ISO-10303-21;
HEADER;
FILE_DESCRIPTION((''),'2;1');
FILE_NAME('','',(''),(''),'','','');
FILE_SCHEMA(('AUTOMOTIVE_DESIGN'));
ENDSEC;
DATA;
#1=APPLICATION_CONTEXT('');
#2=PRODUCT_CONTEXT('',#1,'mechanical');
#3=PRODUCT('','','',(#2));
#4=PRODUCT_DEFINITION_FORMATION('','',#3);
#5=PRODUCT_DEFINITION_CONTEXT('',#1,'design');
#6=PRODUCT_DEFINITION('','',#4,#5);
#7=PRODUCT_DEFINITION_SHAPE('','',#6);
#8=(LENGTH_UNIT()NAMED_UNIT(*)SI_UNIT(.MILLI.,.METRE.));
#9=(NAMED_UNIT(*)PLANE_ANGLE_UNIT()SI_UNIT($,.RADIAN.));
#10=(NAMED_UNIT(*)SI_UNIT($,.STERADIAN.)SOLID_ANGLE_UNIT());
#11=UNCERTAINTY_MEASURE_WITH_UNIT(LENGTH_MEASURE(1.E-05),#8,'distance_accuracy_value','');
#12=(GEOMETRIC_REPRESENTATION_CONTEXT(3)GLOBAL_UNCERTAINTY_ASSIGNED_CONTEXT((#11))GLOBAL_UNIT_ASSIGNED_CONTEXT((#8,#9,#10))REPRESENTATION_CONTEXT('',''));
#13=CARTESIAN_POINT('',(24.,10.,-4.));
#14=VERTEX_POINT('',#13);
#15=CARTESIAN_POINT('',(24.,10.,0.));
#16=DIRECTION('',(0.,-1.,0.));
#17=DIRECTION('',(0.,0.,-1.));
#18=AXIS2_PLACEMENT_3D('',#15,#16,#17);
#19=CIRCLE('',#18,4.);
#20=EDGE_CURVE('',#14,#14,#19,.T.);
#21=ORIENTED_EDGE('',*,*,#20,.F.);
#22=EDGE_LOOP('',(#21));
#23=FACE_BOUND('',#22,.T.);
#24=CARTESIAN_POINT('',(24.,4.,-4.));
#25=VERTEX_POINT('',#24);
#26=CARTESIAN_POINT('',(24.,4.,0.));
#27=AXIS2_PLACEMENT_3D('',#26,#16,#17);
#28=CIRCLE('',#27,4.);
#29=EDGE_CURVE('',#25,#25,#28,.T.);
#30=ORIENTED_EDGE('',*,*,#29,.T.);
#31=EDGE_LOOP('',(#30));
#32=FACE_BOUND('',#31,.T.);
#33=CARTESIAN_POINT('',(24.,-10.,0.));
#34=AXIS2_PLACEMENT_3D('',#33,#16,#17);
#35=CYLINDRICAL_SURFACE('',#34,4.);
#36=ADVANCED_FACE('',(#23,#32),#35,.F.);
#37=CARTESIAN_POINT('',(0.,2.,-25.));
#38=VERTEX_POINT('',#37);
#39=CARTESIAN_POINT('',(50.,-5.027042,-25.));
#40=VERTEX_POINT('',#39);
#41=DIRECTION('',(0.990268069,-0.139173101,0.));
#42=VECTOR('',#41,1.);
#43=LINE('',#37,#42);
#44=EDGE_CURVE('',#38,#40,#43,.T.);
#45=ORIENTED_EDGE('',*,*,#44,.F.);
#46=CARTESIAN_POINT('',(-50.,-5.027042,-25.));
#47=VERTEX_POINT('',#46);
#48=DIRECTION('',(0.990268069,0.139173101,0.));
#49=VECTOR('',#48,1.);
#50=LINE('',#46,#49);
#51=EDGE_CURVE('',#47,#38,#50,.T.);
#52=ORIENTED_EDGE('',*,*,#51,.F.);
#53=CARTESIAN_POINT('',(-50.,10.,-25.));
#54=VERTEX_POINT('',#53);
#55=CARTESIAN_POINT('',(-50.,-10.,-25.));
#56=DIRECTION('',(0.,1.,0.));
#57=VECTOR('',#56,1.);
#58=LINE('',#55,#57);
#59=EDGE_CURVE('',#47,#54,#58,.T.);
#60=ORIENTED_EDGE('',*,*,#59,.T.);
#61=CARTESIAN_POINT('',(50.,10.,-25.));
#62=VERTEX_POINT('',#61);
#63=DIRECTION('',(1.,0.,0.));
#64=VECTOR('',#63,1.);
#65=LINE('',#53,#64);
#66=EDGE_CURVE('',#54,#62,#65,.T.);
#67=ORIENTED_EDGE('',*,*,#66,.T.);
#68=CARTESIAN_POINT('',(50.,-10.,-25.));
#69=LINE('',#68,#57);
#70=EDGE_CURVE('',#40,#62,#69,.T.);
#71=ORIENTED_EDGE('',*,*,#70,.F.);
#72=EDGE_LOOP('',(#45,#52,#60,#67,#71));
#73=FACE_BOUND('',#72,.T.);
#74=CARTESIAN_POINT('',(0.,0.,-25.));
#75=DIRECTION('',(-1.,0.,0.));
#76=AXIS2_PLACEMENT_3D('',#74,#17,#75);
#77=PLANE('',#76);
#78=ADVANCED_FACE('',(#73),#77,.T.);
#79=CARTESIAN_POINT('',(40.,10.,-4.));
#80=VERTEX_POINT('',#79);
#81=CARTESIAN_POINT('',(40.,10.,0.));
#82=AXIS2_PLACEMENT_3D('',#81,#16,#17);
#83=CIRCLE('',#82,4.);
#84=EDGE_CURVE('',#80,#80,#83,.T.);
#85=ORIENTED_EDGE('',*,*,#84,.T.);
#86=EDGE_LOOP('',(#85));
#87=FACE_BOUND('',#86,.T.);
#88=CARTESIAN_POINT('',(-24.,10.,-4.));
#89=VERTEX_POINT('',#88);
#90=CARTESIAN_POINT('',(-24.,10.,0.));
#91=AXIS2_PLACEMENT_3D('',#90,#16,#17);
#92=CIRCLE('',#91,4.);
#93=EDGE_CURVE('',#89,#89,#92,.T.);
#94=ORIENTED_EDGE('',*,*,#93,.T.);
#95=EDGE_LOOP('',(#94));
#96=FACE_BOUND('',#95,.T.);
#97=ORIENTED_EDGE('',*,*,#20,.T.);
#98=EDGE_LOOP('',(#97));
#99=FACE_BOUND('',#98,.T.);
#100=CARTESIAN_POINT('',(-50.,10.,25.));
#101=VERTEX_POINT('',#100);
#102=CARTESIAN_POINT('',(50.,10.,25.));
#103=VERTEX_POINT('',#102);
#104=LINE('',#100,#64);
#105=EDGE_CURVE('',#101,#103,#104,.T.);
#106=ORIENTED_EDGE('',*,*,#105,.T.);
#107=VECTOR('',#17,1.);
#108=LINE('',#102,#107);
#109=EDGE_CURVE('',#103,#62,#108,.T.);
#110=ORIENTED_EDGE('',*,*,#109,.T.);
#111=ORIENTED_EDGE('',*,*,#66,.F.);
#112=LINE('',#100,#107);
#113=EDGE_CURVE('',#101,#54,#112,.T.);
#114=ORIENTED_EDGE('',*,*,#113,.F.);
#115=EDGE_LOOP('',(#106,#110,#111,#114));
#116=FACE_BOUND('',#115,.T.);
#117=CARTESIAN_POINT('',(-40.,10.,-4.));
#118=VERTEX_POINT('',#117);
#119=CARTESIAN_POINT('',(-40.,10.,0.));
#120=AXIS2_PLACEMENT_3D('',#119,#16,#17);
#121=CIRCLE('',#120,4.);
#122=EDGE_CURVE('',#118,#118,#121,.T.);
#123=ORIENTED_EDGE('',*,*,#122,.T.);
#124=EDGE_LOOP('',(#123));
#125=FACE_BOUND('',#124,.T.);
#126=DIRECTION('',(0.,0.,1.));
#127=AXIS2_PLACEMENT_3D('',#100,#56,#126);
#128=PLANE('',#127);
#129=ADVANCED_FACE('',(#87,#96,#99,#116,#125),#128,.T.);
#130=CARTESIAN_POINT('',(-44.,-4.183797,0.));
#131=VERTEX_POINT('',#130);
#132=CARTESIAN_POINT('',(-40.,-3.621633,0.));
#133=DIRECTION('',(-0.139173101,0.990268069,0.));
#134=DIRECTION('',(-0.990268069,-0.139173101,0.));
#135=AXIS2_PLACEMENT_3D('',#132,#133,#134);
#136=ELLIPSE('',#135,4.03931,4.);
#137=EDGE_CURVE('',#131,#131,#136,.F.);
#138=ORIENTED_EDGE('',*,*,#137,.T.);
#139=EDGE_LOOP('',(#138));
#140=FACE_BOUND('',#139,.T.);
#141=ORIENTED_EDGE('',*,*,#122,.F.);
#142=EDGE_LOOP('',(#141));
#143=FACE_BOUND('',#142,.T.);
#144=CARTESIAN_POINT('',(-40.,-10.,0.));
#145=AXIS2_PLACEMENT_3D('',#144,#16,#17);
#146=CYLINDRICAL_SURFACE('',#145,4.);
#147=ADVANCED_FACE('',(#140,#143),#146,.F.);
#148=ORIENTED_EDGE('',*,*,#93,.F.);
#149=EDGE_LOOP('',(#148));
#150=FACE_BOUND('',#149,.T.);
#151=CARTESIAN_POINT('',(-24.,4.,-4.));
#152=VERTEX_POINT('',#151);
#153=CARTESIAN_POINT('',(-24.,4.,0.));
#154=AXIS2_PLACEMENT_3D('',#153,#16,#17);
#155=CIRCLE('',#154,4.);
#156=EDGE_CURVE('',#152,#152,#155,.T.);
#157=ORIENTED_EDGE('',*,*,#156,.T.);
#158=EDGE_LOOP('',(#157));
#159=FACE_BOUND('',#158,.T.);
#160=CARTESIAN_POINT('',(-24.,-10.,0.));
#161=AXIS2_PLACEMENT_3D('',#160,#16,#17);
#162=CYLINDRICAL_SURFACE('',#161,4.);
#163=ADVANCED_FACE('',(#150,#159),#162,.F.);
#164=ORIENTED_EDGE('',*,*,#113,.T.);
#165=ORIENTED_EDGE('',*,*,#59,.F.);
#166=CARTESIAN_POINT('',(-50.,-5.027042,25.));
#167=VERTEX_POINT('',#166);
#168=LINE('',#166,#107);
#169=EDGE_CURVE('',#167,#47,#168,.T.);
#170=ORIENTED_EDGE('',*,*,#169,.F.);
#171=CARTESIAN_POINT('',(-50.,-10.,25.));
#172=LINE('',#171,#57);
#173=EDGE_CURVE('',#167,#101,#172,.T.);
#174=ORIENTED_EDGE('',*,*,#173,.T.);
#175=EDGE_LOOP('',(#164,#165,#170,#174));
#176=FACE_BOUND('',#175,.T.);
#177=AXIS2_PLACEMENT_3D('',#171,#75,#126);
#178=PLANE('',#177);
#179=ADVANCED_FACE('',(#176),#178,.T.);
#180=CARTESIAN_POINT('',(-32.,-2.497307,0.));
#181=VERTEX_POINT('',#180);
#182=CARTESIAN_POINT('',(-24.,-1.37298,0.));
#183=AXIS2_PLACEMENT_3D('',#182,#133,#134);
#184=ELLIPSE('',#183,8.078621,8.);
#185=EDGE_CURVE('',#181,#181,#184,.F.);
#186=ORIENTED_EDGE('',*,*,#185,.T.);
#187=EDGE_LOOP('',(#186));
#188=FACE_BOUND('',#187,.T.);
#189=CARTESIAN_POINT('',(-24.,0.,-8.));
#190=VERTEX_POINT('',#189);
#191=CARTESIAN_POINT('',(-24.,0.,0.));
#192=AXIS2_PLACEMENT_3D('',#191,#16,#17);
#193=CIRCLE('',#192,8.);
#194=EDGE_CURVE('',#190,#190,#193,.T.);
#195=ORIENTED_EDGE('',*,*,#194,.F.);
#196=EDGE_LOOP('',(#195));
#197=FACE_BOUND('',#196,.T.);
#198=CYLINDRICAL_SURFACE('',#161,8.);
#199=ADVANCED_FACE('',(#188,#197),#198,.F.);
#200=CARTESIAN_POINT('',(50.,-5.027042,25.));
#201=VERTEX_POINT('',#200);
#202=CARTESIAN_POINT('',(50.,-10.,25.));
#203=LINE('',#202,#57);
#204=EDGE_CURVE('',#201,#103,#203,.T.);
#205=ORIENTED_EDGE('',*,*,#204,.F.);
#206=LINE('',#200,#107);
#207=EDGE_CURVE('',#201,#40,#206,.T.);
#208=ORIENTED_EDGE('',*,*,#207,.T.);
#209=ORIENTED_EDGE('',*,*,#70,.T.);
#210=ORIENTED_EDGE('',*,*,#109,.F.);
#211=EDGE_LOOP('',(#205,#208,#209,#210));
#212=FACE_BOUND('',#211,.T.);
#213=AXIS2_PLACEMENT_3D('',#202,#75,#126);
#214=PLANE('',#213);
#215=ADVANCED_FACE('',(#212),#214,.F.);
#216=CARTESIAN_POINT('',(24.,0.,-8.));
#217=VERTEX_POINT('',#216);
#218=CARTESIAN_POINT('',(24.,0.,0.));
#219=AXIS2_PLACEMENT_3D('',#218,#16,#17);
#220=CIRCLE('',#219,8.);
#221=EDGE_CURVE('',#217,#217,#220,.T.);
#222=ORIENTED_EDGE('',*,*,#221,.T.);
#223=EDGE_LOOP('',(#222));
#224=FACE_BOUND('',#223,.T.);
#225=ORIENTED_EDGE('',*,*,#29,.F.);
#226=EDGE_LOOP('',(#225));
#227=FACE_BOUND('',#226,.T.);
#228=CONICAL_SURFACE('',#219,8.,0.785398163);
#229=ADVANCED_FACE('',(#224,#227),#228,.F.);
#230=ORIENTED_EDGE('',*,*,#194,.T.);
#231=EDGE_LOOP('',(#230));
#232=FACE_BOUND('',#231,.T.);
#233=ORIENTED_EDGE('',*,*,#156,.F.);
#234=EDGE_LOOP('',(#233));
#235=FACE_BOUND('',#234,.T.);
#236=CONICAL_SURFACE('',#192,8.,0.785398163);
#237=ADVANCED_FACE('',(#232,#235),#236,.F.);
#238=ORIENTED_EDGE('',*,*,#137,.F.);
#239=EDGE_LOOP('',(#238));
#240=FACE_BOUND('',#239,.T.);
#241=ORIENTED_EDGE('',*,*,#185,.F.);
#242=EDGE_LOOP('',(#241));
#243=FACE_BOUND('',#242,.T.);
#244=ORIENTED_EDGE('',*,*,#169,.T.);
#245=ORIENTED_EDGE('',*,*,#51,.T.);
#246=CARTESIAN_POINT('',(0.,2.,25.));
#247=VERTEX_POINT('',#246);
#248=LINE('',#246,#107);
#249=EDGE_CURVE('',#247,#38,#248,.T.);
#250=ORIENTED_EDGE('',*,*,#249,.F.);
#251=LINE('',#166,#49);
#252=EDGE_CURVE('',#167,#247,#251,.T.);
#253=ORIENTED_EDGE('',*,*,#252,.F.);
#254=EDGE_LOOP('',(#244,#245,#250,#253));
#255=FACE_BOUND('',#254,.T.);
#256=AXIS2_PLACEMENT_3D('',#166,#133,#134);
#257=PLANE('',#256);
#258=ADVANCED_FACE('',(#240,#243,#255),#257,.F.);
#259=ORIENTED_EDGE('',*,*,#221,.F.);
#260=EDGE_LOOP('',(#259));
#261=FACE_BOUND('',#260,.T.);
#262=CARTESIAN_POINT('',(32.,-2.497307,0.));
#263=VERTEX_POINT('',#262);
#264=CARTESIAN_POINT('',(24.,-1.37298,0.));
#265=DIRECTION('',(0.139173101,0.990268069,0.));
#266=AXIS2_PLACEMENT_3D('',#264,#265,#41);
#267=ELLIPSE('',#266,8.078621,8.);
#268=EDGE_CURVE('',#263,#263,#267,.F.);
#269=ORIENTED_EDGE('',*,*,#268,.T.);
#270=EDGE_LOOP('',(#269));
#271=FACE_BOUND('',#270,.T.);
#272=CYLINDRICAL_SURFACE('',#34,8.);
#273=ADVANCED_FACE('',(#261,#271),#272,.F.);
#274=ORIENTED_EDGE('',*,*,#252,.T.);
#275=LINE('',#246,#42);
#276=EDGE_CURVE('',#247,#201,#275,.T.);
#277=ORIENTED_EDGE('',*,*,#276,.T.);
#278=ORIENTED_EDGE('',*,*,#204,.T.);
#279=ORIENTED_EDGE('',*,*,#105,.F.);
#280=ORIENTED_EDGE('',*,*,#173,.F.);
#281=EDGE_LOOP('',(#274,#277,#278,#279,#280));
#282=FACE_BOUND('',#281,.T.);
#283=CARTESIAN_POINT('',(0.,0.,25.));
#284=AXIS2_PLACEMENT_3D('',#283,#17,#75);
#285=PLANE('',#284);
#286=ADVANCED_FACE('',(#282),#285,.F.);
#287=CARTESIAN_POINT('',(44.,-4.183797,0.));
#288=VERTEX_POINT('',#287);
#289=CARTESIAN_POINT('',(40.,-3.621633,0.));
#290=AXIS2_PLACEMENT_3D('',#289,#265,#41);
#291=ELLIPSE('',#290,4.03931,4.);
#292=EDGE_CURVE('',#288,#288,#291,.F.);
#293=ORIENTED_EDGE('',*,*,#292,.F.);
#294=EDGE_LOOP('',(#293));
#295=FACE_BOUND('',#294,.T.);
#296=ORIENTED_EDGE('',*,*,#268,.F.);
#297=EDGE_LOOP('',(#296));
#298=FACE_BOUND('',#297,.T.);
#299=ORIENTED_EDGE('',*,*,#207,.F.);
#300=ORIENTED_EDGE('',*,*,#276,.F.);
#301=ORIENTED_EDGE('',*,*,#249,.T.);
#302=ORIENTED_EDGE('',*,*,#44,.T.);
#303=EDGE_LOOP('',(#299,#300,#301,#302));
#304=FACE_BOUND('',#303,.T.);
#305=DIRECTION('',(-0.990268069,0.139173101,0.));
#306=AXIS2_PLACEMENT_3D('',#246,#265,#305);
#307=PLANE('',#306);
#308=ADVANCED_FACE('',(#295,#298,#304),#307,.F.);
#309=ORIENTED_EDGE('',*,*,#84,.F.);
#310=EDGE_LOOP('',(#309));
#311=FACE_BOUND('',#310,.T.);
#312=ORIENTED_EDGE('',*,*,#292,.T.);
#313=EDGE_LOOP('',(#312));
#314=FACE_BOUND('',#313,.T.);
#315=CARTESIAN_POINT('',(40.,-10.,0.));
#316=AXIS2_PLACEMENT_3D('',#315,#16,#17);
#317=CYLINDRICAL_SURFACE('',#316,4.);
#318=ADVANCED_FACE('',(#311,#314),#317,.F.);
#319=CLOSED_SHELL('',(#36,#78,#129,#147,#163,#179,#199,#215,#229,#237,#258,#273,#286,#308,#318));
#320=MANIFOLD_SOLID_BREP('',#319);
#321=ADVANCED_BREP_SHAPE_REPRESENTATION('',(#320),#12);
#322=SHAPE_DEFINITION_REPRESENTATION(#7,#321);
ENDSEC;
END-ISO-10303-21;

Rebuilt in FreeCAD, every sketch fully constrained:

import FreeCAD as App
import Part
import Sketcher
from FreeCAD import Vector
Q = App.Units.Quantity

doc = App.newDocument("Part")
body = doc.addObject("PartDesign::Body", "Body")

sketch1 = body.newObject("Sketcher::SketchObject", "Sketch")
sketch1.AttachmentSupport = (doc.getObject("XY_Plane"), [""])
sketch1.MapMode = "FlatFace"
sketch1.addGeometry(Part.LineSegment(Vector(-50, 10, 0), Vector(-50, -10, 0)), False)
sketch1.addGeometry(Part.LineSegment(Vector(-50, -10, 0), Vector(50, -10, 0)), False)
sketch1.addGeometry(Part.LineSegment(Vector(50, -10, 0), Vector(50, 10, 0)), False)
sketch1.addGeometry(Part.LineSegment(Vector(50, 10, 0), Vector(-50, 10, 0)), False)
sketch1.addConstraint(Sketcher.Constraint("Coincident", 0, 2, 1, 1))
sketch1.addConstraint(Sketcher.Constraint("Coincident", 1, 2, 2, 1))
sketch1.addConstraint(Sketcher.Constraint("Coincident", 2, 2, 3, 1))
sketch1.addConstraint(Sketcher.Constraint("Coincident", 3, 2, 0, 1))
sketch1.addConstraint(Sketcher.Constraint("Vertical", 0))
sketch1.addConstraint(Sketcher.Constraint("Horizontal", 1))
sketch1.addConstraint(Sketcher.Constraint("Vertical", 2))
sketch1.addConstraint(Sketcher.Constraint("Horizontal", 3))
sketch1.addConstraint(Sketcher.Constraint("Symmetric", 0, 2, 2, 2, -1, 1))
sketch1.addConstraint(Sketcher.Constraint("DistanceX", 1, 1, 1, 2, 100.0))
sketch1.addConstraint(Sketcher.Constraint("DistanceY", 0, 2, 0, 1, 20.0))
pad1 = body.newObject("PartDesign::Pad", "Pad")
pad1.Profile = sketch1
pad1.Length = 50
pad1.Midplane = True

sketch2 = body.newObject("Sketcher::SketchObject", "Sketch001")
sketch2.AttachmentSupport = (doc.getObject("YZ_Plane"), [""])
sketch2.MapMode = "FlatFace"
sketch2.AttachmentOffset = App.Placement(Vector(0, 0, -24), App.Rotation())
sketch2.addGeometry(Part.LineSegment(Vector(10, 0, 0), Vector(-10, 0, 0)), False)
sketch2.addGeometry(Part.LineSegment(Vector(-10, 0, 0), Vector(-10, -8, 0)), False)
sketch2.addGeometry(Part.LineSegment(Vector(-10, -8, 0), Vector(0, -8, 0)), False)
sketch2.addGeometry(Part.LineSegment(Vector(0, -8, 0), Vector(4, -4, 0)), False)
sketch2.addGeometry(Part.LineSegment(Vector(4, -4, 0), Vector(10, -4, 0)), False)
sketch2.addGeometry(Part.LineSegment(Vector(10, -4, 0), Vector(10, 0, 0)), False)
sketch2.addConstraint(Sketcher.Constraint("Coincident", 0, 2, 1, 1))
sketch2.addConstraint(Sketcher.Constraint("Coincident", 1, 2, 2, 1))
sketch2.addConstraint(Sketcher.Constraint("Coincident", 2, 2, 3, 1))
sketch2.addConstraint(Sketcher.Constraint("Coincident", 3, 2, 4, 1))
sketch2.addConstraint(Sketcher.Constraint("Coincident", 4, 2, 5, 1))
sketch2.addConstraint(Sketcher.Constraint("Coincident", 5, 2, 0, 1))
sketch2.addConstraint(Sketcher.Constraint("Horizontal", 0))
sketch2.addConstraint(Sketcher.Constraint("Vertical", 1))
sketch2.addConstraint(Sketcher.Constraint("Horizontal", 2))
sketch2.addConstraint(Sketcher.Constraint("Horizontal", 4))
sketch2.addConstraint(Sketcher.Constraint("Vertical", 5))
sketch2.addConstraint(Sketcher.Constraint("Symmetric", 0, 2, 5, 2, -1, 1))
sketch2.addConstraint(Sketcher.Constraint("PointOnObject", 2, 2, -2))
sketch2.addConstraint(Sketcher.Constraint("DistanceX", 0, 2, 0, 1, 20.0))
sketch2.addConstraint(Sketcher.Constraint("DistanceX", 4, 1, 4, 2, 6.0))
sketch2.addConstraint(Sketcher.Constraint("DistanceY", 1, 2, 1, 1, 8.0))
sketch2.addConstraint(Sketcher.Constraint("DistanceY", 5, 1, 5, 2, 4.0))
groove = body.newObject("PartDesign::Groove", "Groove")
groove.Profile = sketch2
groove.ReferenceAxis = (sketch2, ["H_Axis"])
groove.Angle = 360
doc.recompute()

linearpattern = body.newObject("PartDesign::LinearPattern", "LinearPattern")
linearpattern.Originals = [groove]
linearpattern.Direction = (doc.getObject("X_Axis"), [""])
linearpattern.Mode = "offset"
linearpattern.Offset = 48
linearpattern.Occurrences = 2
body.Tip = linearpattern

sketch3 = body.newObject("Sketcher::SketchObject", "Sketch002")
sketch3.AttachmentSupport = (doc.getObject("XZ_Plane"), [""])
sketch3.MapMode = "FlatFace"
sketch3.AttachmentOffset = App.Placement(Vector(0, 0, 10), App.Rotation())
sketch3.addGeometry(Part.Circle(Vector(40, 0, 0), Vector(0, 0, 1), 4), False)
sketch3.addGeometry(Part.Circle(Vector(-40, 0, 0), Vector(0, 0, 1), 4), False)
sketch3.addConstraint(Sketcher.Constraint("Equal", 0, 1))
sketch3.addConstraint(Sketcher.Constraint("Symmetric", 0, 3, 1, 3, -1, 1))
sketch3.addConstraint(Sketcher.Constraint("PointOnObject", 0, 3, -1))
sketch3.addConstraint(Sketcher.Constraint("Diameter", 0, 8.0))
sketch3.addConstraint(Sketcher.Constraint("DistanceX", -1, 1, 0, 3, 40.0))
doc.recompute()
hole = body.newObject("PartDesign::Hole", "Hole")
hole.Profile = sketch3
hole.ThreadType = "None"
hole.Diameter = 8
hole.DepthType = "ThroughAll"

sketch4 = body.newObject("Sketcher::SketchObject", "Sketch003")
sketch4.AttachmentSupport = (doc.getObject("XY_Plane"), [""])
sketch4.MapMode = "FlatFace"
sketch4.AttachmentOffset = App.Placement(Vector(0, 0, -25), App.Rotation())
sketch4.addGeometry(Part.LineSegment(Vector(0, 2, 0), Vector(50, -5, 0)), False)
sketch4.addGeometry(Part.LineSegment(Vector(50, -5, 0), Vector(50, -10, 0)), False)
sketch4.addGeometry(Part.LineSegment(Vector(50, -10, 0), Vector(-50, -10, 0)), False)
sketch4.addGeometry(Part.LineSegment(Vector(-50, -10, 0), Vector(-50, -5, 0)), False)
sketch4.addGeometry(Part.LineSegment(Vector(-50, -5, 0), Vector(0, 2, 0)), False)
sketch4.addConstraint(Sketcher.Constraint("Coincident", 0, 2, 1, 1))
sketch4.addConstraint(Sketcher.Constraint("Coincident", 1, 2, 2, 1))
sketch4.addConstraint(Sketcher.Constraint("Coincident", 2, 2, 3, 1))
sketch4.addConstraint(Sketcher.Constraint("Coincident", 3, 2, 4, 1))
sketch4.addConstraint(Sketcher.Constraint("Coincident", 4, 2, 0, 1))
sketch4.addConstraint(Sketcher.Constraint("Vertical", 1))
sketch4.addConstraint(Sketcher.Constraint("Horizontal", 2))
sketch4.addConstraint(Sketcher.Constraint("Vertical", 3))
sketch4.addConstraint(Sketcher.Constraint("Symmetric", 0, 2, 3, 2, -2))
sketch4.addConstraint(Sketcher.Constraint("PointOnObject", 4, 2, -2))
sketch4.addConstraint(Sketcher.Constraint("DistanceX", 2, 2, 2, 1, 100.0))
sketch4.addConstraint(Sketcher.Constraint("Angle", 0, Q("-8 deg")))
sketch4.addConstraint(Sketcher.Constraint("DistanceY", 1, 2, -1, 1, 10.0))
sketch4.addConstraint(Sketcher.Constraint("DistanceY", -1, 1, 4, 2, 2.0))
pocket1 = body.newObject("PartDesign::Pocket", "Pocket")
pocket1.Profile = sketch4
pocket1.Type = "ThroughAll"
pocket1.Reversed = True

doc.recompute()
